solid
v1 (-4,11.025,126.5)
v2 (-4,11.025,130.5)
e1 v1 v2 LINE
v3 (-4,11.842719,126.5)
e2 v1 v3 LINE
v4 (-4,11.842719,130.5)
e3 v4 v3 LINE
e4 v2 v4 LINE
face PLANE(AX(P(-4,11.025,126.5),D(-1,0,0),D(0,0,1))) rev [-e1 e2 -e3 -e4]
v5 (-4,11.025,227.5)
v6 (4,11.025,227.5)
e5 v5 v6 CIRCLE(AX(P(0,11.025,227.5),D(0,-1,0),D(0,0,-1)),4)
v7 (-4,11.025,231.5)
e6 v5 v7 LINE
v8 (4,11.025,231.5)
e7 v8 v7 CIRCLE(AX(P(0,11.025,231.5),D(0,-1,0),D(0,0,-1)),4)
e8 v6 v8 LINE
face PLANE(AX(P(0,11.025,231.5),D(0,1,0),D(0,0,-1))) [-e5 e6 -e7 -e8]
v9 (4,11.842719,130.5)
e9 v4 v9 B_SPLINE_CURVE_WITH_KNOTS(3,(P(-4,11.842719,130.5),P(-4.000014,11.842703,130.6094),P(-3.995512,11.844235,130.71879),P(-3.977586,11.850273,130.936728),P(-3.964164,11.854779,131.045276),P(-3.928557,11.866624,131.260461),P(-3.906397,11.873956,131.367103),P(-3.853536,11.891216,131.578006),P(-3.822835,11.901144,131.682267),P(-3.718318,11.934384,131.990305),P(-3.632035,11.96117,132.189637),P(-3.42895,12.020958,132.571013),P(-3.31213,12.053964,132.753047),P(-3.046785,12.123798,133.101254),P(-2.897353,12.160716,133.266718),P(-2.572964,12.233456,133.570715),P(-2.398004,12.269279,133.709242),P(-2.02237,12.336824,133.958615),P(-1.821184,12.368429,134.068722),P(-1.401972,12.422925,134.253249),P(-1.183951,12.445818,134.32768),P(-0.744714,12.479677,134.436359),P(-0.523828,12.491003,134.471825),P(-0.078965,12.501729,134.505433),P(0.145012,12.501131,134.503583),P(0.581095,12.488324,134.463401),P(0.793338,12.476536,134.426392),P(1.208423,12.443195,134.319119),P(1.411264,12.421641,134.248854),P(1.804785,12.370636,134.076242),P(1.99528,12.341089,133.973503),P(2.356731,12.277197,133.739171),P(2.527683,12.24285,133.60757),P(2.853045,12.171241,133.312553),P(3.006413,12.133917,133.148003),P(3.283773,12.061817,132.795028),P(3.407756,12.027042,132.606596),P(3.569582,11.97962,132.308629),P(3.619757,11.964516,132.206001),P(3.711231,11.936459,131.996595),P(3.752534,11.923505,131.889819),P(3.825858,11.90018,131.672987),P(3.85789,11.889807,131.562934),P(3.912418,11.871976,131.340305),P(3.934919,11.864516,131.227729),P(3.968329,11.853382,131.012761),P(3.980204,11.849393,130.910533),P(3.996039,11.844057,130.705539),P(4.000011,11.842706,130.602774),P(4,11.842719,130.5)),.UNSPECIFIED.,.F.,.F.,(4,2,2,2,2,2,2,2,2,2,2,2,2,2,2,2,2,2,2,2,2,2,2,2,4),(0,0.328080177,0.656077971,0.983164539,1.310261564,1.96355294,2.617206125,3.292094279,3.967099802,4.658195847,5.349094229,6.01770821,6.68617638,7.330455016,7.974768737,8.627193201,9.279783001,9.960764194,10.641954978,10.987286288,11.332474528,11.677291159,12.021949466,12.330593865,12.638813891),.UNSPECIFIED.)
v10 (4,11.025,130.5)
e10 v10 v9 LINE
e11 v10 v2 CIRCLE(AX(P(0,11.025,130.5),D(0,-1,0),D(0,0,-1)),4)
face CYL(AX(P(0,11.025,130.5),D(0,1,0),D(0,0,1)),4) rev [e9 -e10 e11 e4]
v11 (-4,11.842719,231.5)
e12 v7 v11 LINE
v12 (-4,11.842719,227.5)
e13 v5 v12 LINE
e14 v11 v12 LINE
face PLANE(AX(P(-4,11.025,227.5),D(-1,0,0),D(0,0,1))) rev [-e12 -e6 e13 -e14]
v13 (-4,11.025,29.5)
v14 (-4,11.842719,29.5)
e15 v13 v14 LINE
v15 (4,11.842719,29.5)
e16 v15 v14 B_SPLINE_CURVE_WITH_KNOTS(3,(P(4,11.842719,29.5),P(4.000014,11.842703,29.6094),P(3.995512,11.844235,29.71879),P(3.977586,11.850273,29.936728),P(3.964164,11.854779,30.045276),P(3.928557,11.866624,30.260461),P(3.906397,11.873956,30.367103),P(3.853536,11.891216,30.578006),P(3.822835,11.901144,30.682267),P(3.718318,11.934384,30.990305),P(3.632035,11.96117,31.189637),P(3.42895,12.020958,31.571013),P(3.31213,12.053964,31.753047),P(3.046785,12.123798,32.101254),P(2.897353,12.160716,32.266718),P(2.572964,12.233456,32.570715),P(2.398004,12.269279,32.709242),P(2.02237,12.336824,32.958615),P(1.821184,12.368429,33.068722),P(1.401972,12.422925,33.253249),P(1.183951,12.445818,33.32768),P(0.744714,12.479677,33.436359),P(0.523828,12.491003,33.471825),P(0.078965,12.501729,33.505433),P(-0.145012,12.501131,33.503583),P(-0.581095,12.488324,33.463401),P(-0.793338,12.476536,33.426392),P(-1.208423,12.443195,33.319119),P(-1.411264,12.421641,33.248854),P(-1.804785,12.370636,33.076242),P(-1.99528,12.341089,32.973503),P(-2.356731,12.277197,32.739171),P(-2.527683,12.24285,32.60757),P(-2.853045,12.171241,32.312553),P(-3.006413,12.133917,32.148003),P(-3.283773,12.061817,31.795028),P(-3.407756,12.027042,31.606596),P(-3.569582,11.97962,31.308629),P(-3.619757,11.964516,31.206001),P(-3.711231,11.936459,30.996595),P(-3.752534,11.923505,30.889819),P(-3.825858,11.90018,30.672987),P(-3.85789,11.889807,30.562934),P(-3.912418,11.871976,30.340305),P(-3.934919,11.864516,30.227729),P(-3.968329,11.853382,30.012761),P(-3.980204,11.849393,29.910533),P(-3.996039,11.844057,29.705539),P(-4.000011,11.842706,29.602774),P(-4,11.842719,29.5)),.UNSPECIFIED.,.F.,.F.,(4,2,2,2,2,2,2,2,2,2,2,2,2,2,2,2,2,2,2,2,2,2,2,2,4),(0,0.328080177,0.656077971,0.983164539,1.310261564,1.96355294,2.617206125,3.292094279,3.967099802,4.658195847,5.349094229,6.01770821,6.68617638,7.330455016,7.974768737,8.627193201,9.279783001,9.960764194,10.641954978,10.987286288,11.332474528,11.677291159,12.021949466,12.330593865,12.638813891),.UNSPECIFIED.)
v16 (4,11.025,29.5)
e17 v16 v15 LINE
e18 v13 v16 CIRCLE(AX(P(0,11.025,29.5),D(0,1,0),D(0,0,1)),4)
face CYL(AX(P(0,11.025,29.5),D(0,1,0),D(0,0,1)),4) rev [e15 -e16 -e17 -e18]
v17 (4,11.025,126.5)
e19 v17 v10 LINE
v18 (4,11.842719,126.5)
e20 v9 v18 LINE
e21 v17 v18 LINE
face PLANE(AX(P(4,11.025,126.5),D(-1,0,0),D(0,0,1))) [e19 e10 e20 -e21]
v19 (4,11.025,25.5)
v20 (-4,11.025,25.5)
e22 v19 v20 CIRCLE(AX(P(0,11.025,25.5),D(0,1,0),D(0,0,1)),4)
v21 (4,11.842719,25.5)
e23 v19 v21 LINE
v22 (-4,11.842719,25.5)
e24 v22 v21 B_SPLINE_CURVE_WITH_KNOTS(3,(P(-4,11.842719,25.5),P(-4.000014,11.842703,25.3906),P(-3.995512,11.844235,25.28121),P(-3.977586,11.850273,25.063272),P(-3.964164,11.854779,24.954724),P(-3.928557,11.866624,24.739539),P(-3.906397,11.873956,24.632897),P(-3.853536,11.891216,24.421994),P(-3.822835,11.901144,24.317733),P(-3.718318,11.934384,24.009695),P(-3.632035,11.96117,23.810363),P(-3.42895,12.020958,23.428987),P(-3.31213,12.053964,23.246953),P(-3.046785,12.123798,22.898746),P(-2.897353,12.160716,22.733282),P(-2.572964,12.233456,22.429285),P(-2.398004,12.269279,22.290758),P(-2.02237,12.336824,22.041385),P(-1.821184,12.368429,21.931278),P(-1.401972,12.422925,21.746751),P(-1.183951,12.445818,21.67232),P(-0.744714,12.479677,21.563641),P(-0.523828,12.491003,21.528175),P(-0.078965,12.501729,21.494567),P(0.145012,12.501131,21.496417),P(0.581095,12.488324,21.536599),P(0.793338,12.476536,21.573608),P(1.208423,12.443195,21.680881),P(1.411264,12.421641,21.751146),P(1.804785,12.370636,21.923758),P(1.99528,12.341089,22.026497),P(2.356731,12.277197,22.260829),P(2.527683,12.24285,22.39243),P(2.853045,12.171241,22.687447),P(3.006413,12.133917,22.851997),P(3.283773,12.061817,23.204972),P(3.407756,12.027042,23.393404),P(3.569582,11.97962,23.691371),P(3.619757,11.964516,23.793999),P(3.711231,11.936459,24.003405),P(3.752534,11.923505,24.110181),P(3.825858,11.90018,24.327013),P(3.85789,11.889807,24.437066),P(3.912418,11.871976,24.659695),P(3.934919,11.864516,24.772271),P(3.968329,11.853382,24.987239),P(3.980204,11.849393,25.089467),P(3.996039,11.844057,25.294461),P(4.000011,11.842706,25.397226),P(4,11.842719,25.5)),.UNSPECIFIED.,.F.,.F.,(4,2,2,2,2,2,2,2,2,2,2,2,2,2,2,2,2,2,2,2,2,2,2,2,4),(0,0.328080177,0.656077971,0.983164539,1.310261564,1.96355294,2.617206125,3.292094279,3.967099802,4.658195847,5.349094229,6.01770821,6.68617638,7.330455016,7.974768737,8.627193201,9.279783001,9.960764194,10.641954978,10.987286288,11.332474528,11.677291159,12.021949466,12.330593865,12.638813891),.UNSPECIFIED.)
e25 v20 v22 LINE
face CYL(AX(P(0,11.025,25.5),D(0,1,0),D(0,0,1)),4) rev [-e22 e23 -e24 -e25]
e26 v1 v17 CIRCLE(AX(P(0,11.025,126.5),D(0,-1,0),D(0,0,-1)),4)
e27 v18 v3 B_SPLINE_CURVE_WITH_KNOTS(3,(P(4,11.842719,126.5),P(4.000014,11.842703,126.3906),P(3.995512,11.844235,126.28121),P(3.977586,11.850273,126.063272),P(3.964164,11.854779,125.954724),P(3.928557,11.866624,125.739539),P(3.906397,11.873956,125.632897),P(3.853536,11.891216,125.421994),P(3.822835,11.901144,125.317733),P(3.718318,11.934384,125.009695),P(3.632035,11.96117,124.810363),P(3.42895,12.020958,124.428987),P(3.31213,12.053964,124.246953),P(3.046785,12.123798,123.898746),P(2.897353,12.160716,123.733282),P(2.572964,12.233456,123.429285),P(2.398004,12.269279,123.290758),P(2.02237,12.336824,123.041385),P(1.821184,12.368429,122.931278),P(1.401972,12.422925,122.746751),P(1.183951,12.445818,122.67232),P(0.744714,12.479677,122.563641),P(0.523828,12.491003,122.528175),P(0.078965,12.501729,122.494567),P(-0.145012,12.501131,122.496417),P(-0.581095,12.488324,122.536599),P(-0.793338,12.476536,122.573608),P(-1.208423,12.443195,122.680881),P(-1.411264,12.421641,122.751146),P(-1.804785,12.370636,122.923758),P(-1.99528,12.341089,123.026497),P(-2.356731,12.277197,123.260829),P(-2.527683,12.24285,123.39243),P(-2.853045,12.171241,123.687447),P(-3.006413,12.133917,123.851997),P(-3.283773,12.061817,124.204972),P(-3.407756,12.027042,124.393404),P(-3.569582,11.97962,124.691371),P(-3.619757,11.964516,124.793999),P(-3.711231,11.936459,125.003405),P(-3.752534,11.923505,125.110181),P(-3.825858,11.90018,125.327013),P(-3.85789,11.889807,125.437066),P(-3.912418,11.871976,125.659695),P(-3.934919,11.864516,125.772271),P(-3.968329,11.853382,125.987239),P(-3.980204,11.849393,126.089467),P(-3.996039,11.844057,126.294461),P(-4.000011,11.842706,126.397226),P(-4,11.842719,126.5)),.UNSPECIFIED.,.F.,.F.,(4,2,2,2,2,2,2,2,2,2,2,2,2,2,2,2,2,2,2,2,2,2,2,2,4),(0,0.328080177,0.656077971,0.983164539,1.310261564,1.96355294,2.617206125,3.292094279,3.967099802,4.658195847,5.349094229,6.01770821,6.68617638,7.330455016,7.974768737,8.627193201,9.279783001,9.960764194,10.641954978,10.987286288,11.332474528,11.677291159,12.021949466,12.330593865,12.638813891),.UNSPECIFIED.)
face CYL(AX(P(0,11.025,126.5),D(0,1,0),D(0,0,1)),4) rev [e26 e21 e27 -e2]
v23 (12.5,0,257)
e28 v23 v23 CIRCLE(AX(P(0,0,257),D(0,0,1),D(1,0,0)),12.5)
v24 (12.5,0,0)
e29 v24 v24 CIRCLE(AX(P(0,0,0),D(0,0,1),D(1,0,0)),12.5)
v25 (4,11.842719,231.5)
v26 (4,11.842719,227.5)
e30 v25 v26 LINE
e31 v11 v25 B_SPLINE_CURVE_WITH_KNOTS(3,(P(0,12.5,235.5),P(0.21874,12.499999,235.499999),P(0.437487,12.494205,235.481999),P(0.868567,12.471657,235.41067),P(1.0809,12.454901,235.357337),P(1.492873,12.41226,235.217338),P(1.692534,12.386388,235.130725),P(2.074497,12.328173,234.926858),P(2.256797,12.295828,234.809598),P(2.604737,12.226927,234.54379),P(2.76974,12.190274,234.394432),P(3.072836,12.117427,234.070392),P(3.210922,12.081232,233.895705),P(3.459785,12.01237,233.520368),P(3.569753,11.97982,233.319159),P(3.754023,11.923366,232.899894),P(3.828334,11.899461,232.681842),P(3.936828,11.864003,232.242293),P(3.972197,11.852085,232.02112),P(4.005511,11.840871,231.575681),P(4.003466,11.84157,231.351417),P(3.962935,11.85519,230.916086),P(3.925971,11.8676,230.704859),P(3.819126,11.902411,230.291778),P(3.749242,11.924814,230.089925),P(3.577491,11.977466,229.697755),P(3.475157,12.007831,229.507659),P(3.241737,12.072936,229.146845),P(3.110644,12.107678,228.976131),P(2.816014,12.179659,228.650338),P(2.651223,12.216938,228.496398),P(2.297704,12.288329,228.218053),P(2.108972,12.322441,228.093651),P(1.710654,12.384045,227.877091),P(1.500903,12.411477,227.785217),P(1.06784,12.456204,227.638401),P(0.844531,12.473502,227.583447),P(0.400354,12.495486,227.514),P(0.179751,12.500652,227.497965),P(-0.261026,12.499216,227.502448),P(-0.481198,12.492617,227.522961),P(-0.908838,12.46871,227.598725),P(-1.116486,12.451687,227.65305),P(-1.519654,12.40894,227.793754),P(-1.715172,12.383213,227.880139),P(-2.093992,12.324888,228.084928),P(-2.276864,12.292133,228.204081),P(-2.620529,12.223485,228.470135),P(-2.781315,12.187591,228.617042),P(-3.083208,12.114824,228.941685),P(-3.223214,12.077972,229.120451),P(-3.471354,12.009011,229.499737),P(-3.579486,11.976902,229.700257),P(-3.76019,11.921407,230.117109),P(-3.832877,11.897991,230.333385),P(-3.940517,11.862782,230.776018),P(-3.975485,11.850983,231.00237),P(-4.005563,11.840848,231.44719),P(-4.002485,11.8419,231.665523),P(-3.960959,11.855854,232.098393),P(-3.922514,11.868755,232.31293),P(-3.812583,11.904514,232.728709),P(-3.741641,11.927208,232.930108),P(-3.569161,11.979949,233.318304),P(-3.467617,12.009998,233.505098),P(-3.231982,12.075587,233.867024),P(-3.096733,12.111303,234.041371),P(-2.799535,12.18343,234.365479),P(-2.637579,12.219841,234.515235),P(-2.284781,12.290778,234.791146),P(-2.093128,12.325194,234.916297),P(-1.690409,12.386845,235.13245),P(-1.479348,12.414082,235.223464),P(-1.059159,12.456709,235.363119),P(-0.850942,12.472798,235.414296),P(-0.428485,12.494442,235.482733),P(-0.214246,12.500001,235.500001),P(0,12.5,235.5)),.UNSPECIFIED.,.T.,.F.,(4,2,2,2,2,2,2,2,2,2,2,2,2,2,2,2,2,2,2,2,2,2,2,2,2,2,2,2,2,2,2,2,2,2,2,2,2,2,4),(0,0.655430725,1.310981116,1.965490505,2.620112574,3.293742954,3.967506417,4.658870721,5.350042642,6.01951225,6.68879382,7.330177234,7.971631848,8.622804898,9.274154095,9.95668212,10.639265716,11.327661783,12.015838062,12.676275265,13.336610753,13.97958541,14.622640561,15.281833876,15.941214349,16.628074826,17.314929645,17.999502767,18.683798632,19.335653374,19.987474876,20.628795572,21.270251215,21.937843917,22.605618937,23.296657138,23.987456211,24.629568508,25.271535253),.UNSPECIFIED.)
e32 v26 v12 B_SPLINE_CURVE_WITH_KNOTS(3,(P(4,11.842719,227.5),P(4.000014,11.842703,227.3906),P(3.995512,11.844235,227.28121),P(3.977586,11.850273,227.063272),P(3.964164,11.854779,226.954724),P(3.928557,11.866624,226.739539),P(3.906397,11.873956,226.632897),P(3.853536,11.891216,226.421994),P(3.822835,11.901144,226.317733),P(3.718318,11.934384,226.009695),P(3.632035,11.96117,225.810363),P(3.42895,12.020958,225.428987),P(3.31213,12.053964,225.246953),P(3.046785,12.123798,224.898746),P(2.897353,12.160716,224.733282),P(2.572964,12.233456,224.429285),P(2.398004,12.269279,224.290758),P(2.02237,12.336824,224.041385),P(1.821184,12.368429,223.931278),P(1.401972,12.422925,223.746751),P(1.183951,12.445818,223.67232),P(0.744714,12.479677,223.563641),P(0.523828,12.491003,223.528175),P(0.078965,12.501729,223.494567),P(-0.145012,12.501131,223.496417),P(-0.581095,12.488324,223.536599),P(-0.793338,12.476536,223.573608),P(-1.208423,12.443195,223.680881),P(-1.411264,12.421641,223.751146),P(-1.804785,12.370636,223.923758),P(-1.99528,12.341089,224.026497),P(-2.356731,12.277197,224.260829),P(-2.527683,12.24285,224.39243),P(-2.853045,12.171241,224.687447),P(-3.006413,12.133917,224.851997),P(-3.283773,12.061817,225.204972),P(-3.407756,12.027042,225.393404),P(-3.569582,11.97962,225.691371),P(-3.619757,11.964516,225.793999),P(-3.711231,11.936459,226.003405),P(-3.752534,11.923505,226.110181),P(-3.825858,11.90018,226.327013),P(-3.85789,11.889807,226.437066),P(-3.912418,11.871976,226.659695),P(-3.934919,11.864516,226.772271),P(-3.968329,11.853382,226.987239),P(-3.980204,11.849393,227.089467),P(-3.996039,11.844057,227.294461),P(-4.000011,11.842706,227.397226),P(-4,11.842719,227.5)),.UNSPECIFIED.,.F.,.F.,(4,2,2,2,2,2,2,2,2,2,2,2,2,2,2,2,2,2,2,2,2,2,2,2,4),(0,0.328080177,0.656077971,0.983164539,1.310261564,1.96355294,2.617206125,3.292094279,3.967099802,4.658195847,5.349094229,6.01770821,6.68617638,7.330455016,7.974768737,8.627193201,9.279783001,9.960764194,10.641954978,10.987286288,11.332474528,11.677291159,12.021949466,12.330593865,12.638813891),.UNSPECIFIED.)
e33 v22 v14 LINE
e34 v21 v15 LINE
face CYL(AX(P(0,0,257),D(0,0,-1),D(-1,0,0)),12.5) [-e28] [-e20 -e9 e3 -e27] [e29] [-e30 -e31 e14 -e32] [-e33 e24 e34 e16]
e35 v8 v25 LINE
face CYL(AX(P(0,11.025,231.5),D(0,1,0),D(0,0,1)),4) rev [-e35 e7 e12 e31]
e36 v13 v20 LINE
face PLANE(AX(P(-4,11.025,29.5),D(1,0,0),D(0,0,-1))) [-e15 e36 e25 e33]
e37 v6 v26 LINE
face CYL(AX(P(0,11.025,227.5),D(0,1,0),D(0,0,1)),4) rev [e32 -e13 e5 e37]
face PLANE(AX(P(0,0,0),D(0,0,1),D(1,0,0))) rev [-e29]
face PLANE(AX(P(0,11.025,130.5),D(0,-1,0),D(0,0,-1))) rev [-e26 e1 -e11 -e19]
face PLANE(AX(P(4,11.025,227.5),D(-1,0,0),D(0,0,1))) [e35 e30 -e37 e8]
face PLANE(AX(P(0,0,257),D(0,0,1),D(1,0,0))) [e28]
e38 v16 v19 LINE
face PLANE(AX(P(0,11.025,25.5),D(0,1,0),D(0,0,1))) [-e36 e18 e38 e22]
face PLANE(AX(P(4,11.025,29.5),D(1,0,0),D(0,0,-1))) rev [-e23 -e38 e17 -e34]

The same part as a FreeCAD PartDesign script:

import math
import FreeCAD as App
import Part
import Sketcher
from FreeCAD import Vector

doc = App.newDocument("Part")
body = doc.addObject("PartDesign::Body", "Body")

sketch1 = body.newObject("Sketcher::SketchObject", "Sketch")
sketch1.AttachmentSupport = (doc.getObject("XY_Plane"), [""])
sketch1.MapMode = "FlatFace"
sketch1.addGeometry(Part.Circle(Vector(0, 0, 0), Vector(0, 0, 1), 12), False)
sketch1.addConstraint([
    Sketcher.Constraint("Coincident", 0, 3, -1, 1),
    Sketcher.Constraint("Diameter", 0, 25.0),
])
pad1 = body.newObject("PartDesign::Pad", "Pad")
pad1.Profile = sketch1
pad1.Length = 257

sketch2 = body.newObject("Sketcher::SketchObject", "Sketch001")
sketch2.AttachmentSupport = (doc.getObject("XZ_Plane"), [""])
sketch2.MapMode = "FlatFace"
sketch2.AttachmentOffset = App.Placement(Vector(0, 0, -12), App.Rotation())
sketch2.addGeometry([
    Part.LineSegment(Vector(-4, 25.5, 0), Vector(-4, 29.5, 0)),
    Part.ArcOfCircle(Part.Circle(Vector(0, 29.5, 0), Vector(0, 0, 1), 4), math.radians(0), math.radians(180)),
    Part.LineSegment(Vector(4, 29.5, 0), Vector(4, 25.5, 0)),
    Part.ArcOfCircle(Part.Circle(Vector(0, 25.5, 0), Vector(0, 0, 1), 4), math.radians(180), math.radians(360)),
    Part.LineSegment(Vector(-4, 126.5, 0), Vector(-4, 130.5, 0)),
    Part.ArcOfCircle(Part.Circle(Vector(0, 130.5, 0), Vector(0, 0, 1), 4), math.radians(0), math.radians(180)),
    Part.LineSegment(Vector(4, 130.5, 0), Vector(4, 126.5, 0)),
    Part.ArcOfCircle(Part.Circle(Vector(0, 126.5, 0), Vector(0, 0, 1), 4), math.radians(180), math.radians(360)),
], False)
sketch2.addConstraint([
    Sketcher.Constraint("Tangent", 0, 2, 1, 2),
    Sketcher.Constraint("Tangent", 1, 1, 2, 1),
    Sketcher.Constraint("Tangent", 2, 2, 3, 2),
    Sketcher.Constraint("Tangent", 3, 1, 0, 1),
    Sketcher.Constraint("Tangent", 4, 2, 5, 2),
    Sketcher.Constraint("Tangent", 5, 1, 6, 1),
    Sketcher.Constraint("Tangent", 6, 2, 7, 2),
    Sketcher.Constraint("Tangent", 7, 1, 4, 1),
    Sketcher.Constraint("Vertical", 0),
    Sketcher.Constraint("Vertical", 2),
    Sketcher.Constraint("Vertical", 4),
    Sketcher.Constraint("Vertical", 6),
    Sketcher.Constraint("Equal", 3, 5),
    Sketcher.Constraint("PointOnObject", 1, 3, -2),
    Sketcher.Constraint("PointOnObject", 5, 3, -2),
    Sketcher.Constraint("Equal", 2, 4),
    Sketcher.Constraint("Radius", 1, 4.0),
    Sketcher.Constraint("DistanceY", 0, 1, 0, 2, 4.0),
    Sketcher.Constraint("DistanceY", 1, 3, 5, 3, 101.0),
    Sketcher.Constraint("DistanceY", -1, 1, 1, 3, 29.5),
])
pocket1 = body.newObject("PartDesign::Pocket", "Pocket")
pocket1.Profile = sketch2
pocket1.Length = 1.95
pocket1.Midplane = True
doc.recompute()

datumplane = body.newObject("PartDesign::Plane", "DatumPlane")
datumplane.AttachmentSupport = (doc.getObject("XY_Plane"), [""])
datumplane.MapMode = "FlatFace"
datumplane.AttachmentOffset = App.Placement(Vector(0, 0, 128.5), App.Rotation())
mirrored = body.newObject("PartDesign::Mirrored", "Mirrored")
mirrored.Originals = [pocket1]
mirrored.MirrorPlane = (datumplane, [""])
body.Tip = mirrored

doc.recompute()
